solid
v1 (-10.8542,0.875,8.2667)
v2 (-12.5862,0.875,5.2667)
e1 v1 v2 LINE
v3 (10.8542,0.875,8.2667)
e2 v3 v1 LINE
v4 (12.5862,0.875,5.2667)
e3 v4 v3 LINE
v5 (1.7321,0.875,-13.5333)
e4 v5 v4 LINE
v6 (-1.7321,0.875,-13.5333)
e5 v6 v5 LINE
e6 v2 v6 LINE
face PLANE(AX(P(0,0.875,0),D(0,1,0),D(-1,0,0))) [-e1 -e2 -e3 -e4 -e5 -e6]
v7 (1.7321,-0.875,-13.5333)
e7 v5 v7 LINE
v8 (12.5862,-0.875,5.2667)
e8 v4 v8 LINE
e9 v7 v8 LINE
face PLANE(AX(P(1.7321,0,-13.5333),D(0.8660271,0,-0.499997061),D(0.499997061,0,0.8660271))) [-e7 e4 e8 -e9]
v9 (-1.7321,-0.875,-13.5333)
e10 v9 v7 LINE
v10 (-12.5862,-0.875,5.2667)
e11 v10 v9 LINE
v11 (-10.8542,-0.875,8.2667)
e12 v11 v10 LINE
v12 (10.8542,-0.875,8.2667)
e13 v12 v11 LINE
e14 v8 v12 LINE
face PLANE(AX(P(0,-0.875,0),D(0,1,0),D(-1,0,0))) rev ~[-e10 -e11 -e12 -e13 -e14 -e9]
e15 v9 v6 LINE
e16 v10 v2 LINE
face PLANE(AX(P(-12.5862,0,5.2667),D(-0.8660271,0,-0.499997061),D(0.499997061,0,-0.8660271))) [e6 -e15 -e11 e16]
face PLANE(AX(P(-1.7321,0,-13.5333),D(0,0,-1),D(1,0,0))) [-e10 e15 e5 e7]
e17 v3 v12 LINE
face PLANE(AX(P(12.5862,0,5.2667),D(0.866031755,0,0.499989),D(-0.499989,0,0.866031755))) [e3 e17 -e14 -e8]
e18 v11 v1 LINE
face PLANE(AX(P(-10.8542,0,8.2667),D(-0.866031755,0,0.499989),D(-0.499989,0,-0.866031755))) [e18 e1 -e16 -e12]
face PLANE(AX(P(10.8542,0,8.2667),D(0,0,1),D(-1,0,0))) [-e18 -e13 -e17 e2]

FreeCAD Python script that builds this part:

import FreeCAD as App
import Part
import Sketcher
from FreeCAD import Vector
Q = App.Units.Quantity

doc = App.newDocument("Part")
body = doc.addObject("PartDesign::Body", "Body")

# Sketch on XZ plane
sketch1 = body.newObject("Sketcher::SketchObject", "Sketch")
sketch1.AttachmentSupport = (doc.getObject("XZ_Plane"), [""])
sketch1.MapMode = "FlatFace"
sketch1.addGeometry([
    Part.LineSegment(Vector(1.7321, -13.5333, 0), Vector(-1.7321, -13.5333, 0)),  # 0
    Part.LineSegment(Vector(-1.7321, -13.5333, 0), Vector(-12.5862, 5.2667, 0)),  # 1
    Part.LineSegment(Vector(-12.5862, 5.2667, 0), Vector(-10.8542, 8.2667, 0)),  # 2
    Part.LineSegment(Vector(-10.8542, 8.2667, 0), Vector(10.8542, 8.2667, 0)),  # 3
    Part.LineSegment(Vector(10.8542, 8.2667, 0), Vector(12.5862, 5.2667, 0)),  # 4
    Part.LineSegment(Vector(12.5862, 5.2667, 0), Vector(1.7321, -13.5333, 0)),  # 5
], False)
sketch1.addConstraint([
    Sketcher.Constraint("Coincident", 0, 2, 1, 1),
    Sketcher.Constraint("Coincident", 1, 2, 2, 1),
    Sketcher.Constraint("Coincident", 2, 2, 3, 1),
    Sketcher.Constraint("Coincident", 3, 2, 4, 1),
    Sketcher.Constraint("Coincident", 4, 2, 5, 1),
    Sketcher.Constraint("Coincident", 5, 2, 0, 1),
    Sketcher.Constraint("Horizontal", 0),
    Sketcher.Constraint("Horizontal", 3),
    Sketcher.Constraint("Symmetric", 1, 2, 4, 2, -2),
    Sketcher.Constraint("Parallel", 1, 4),
    Sketcher.Constraint("Parallel", 2, 5),
    Sketcher.Constraint("Equal", 2, 4),
    Sketcher.Constraint("DistanceY", 0, 2, 2, 2, 21.8),
    Sketcher.Constraint("Angle", 1, Q("119.9998 deg")),
    Sketcher.Constraint("Distance", 2, 3.464),
    Sketcher.Constraint("DistanceX", 0, 2, 0, 1, 3.4642),
    Sketcher.Constraint("DistanceY", 0, 2, -1, 1, 13.5333),
])
pad1 = body.newObject("PartDesign::Pad", "Pad")
pad1.Profile = sketch1
pad1.Length = 1.75
pad1.Midplane = True

doc.recompute()
